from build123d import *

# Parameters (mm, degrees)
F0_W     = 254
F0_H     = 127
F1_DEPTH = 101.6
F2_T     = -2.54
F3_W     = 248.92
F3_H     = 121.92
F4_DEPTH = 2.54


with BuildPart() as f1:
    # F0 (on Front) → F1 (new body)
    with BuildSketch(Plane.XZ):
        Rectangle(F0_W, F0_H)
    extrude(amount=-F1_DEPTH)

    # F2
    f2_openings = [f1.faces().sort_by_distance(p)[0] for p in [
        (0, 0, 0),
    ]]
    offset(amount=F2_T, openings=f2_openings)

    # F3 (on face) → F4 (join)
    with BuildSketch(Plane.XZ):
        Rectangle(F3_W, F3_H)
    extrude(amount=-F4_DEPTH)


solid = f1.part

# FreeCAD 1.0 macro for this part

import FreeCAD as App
import Part
import Sketcher
Q = App.Units.Quantity


def faces_at(feature, points):
    """Names of the faces that lie closest to the given points."""
    faces = feature.Shape.Faces
    near = lambda p: min(range(len(faces)), key=lambda i: faces[i].distToShape(Part.Vertex(*p))[0])
    return sorted({f"Face{near(p) + 1}" for p in points})


def add_polygon(sketch, points):
    """Adds a closed chain of lines whose ends are joined by coincident constraints."""
    first, n = sketch.GeometryCount, len(points)
    for a, b in zip(points, points[1:] + points[:1]):
        sketch.addGeometry(Part.LineSegment(App.Vector(*a, 0), App.Vector(*b, 0)), False)
    for i in range(n):
        sketch.addConstraint(Sketcher.Constraint("Coincident", first + i, 2, first + (i + 1) % n, 1))

doc = App.newDocument("Part")
body = doc.addObject("PartDesign::Body", "Body")

sketch1 = doc.addObject("Sketcher::SketchObject", "Sketch")
body.addObject(sketch1)
sketch1.AttachmentSupport = (doc.XZ_Plane, [""])
sketch1.MapMode = "FlatFace"
add_polygon(sketch1, [(-127, 63.5), (-127, -63.5), (127, -63.5), (127, 63.5)])
sketch1.addConstraint(Sketcher.Constraint("Vertical", 0))
sketch1.addConstraint(Sketcher.Constraint("Horizontal", 1))
sketch1.addConstraint(Sketcher.Constraint("Vertical", 2))
sketch1.addConstraint(Sketcher.Constraint("Horizontal", 3))
sketch1.addConstraint(Sketcher.Constraint("Symmetric", 0, 2, 2, 2, -1, 1))
sketch1.addConstraint(Sketcher.Constraint("DistanceX", 1, 1, 1, 2, Q("10 in")))
sketch1.addConstraint(Sketcher.Constraint("DistanceY", 0, 2, 0, 1, Q("5 in")))
pad1 = doc.addObject("PartDesign::Pad", "Pad")
body.addObject(pad1)
pad1.Profile = sketch1
pad1.Length = Q("4 in")
pad1.Reversed = True
doc.recompute()

thickness = doc.addObject("PartDesign::Thickness", "Thickness")
body.addObject(thickness)
thickness.Base = (pad1, faces_at(pad1, [(0, 0, 0)]))
thickness.Value = Q("0.1 in")
thickness.Reversed = True
thickness.Join = "Arc"

sketch2 = doc.addObject("Sketcher::SketchObject", "Sketch001")
body.addObject(sketch2)
sketch2.AttachmentSupport = (doc.XZ_Plane, [""])
sketch2.MapMode = "FlatFace"
add_polygon(sketch2, [(-124.46, 60.96), (-124.46, -60.96), (124.46, -60.96), (124.46, 60.96)])
sketch2.addConstraint(Sketcher.Constraint("Vertical", 0))
sketch2.addConstraint(Sketcher.Constraint("Horizontal", 1))
sketch2.addConstraint(Sketcher.Constraint("Vertical", 2))
sketch2.addConstraint(Sketcher.Constraint("Horizontal", 3))
sketch2.addConstraint(Sketcher.Constraint("Symmetric", 0, 2, 2, 2, -1, 1))
sketch2.addConstraint(Sketcher.Constraint("DistanceX", 1, 1, 1, 2, Q("9.8 in")))
sketch2.addConstraint(Sketcher.Constraint("DistanceY", 0, 2, 0, 1, Q("4.8 in")))
pad2 = doc.addObject("PartDesign::Pad", "Pad001")
body.addObject(pad2)
pad2.Profile = sketch2
pad2.Length = Q("0.1 in")
pad2.Reversed = True

doc.recompute()
